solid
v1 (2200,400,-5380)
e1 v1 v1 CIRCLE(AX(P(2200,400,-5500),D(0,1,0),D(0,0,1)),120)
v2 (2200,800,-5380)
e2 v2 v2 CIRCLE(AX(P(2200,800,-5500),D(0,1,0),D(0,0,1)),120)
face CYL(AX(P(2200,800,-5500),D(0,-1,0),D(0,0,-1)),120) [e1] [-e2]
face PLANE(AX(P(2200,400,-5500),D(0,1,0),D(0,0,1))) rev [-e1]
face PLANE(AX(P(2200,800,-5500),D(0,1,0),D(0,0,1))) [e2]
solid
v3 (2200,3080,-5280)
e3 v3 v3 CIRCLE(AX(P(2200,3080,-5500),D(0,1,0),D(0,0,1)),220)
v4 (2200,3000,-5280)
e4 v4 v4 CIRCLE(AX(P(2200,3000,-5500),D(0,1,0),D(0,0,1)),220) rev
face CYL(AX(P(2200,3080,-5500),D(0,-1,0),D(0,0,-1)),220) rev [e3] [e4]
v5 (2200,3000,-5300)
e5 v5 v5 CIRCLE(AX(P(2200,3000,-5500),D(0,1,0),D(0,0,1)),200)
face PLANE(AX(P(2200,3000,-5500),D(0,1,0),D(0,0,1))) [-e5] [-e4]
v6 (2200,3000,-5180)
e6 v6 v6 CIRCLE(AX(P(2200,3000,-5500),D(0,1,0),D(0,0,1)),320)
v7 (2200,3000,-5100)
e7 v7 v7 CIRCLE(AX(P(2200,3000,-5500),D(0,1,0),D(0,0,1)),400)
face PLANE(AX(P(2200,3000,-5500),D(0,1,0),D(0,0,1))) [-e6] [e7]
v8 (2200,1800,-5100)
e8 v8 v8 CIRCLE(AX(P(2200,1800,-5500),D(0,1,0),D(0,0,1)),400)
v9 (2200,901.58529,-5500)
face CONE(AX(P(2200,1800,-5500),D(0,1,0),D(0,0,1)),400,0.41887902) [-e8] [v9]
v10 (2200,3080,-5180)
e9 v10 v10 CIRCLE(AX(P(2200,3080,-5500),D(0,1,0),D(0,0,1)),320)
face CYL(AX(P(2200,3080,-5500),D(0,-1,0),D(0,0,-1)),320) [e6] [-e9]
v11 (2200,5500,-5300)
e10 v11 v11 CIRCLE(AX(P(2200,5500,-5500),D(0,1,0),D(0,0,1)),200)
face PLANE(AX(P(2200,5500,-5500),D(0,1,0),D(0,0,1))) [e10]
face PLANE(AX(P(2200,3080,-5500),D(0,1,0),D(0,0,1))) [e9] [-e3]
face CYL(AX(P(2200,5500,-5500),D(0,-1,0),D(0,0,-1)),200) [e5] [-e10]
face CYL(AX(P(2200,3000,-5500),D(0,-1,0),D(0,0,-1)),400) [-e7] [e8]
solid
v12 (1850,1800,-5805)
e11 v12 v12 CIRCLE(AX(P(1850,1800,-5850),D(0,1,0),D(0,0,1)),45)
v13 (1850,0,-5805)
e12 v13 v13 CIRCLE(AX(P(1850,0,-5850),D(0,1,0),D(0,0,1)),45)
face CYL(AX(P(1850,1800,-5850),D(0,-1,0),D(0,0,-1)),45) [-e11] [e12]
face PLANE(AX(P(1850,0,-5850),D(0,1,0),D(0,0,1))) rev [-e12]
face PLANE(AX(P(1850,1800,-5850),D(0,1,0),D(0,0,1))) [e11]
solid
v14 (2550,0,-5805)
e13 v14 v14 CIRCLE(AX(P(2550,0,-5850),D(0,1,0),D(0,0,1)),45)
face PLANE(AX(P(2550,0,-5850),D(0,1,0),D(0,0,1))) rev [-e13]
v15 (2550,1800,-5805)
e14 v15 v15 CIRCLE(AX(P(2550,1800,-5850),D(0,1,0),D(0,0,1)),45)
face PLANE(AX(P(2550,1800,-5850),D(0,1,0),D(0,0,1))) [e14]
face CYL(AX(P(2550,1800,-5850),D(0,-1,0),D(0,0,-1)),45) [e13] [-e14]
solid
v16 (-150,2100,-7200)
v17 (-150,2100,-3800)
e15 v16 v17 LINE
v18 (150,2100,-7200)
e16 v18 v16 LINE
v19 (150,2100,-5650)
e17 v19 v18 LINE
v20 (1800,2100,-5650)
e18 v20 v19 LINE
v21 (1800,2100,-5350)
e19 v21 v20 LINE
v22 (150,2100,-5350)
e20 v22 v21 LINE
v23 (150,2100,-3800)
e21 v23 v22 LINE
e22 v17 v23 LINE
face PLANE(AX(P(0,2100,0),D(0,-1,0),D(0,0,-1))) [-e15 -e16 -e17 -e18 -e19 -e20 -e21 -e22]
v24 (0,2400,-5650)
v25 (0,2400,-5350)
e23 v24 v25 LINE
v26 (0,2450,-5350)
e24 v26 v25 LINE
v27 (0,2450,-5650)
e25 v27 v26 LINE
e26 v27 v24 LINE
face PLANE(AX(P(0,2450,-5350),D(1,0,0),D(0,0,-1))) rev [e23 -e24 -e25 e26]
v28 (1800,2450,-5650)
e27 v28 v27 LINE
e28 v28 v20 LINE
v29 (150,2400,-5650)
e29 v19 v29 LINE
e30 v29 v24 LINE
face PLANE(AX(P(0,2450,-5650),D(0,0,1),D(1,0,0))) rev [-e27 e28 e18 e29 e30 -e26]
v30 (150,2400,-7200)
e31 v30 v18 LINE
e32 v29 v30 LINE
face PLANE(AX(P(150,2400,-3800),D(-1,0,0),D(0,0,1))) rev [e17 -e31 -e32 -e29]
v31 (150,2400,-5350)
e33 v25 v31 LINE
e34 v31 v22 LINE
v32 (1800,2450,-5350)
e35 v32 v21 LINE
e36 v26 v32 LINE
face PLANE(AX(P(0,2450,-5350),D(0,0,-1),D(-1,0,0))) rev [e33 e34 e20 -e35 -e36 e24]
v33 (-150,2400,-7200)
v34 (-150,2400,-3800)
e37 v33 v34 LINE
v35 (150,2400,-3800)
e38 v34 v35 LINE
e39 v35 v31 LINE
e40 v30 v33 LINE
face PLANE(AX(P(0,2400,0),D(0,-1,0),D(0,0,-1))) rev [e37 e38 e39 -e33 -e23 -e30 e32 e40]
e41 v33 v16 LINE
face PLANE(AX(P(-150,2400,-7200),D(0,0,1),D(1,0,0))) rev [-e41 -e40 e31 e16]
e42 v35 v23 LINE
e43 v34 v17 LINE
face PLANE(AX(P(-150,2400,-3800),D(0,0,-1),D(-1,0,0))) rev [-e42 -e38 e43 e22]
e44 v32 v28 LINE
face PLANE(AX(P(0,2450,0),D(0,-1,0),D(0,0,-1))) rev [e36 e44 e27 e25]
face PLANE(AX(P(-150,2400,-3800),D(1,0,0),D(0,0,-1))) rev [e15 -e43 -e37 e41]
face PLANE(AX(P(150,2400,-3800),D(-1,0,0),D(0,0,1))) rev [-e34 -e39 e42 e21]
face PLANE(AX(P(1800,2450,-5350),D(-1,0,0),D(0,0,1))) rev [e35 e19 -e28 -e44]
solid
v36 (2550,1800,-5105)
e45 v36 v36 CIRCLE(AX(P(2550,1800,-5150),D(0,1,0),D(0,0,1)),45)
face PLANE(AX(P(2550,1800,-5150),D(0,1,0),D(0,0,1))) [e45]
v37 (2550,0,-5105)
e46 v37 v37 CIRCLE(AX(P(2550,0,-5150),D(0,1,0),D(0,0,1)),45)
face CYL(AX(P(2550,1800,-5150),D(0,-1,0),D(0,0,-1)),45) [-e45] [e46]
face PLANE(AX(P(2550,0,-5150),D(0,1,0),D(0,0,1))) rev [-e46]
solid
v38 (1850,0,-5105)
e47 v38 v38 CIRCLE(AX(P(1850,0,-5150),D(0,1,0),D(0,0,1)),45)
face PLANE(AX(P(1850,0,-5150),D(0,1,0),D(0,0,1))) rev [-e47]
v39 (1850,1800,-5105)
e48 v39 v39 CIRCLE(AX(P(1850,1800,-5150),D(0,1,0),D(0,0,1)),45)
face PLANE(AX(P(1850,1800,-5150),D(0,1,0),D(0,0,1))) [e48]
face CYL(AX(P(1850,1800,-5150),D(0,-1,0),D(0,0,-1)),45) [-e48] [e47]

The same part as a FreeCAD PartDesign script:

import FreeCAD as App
import Part
import Sketcher
from FreeCAD import Vector
Q = App.Units.Quantity

doc = App.newDocument("Part")
body = doc.addObject("PartDesign::Body", "Body")

# Sketch on XZ plane
sketch1 = body.newObject("Sketcher::SketchObject", "Sketch")
sketch1.AttachmentSupport = (doc.getObject("XZ_Plane"), [""])
sketch1.MapMode = "FlatFace"
sketch1.addGeometry(Part.Circle(Vector(1850, -5150, 0), Vector(0, 0, 1), 45), False)
sketch1.addConstraint([
    Sketcher.Constraint("Diameter", 0, 90.0),
    Sketcher.Constraint("DistanceX", -1, 1, 0, 3, 1850.0),
    Sketcher.Constraint("DistanceY", 0, 3, -1, 1, 5150.0),
])
pad1 = body.newObject("PartDesign::Pad", "Pad")
pad1.Profile = sketch1
pad1.Length = 1800
pad1.Reversed = True
body2 = doc.addObject("PartDesign::Body", "Body001")

# Sketch on XZ plane
sketch2 = body2.newObject("Sketcher::SketchObject", "Sketch001")
sketch2.AttachmentSupport = (doc.getObject("XZ_Plane001"), [""])
sketch2.MapMode = "FlatFace"
sketch2.addGeometry(Part.Circle(Vector(2550, -5150, 0), Vector(0, 0, 1), 45), False)
sketch2.addConstraint([
    Sketcher.Constraint("Diameter", 0, 90.0),
    Sketcher.Constraint("DistanceX", -1, 1, 0, 3, 2550.0),
    Sketcher.Constraint("DistanceY", 0, 3, -1, 1, 5150.0),
])
pad2 = body2.newObject("PartDesign::Pad", "Pad001")
pad2.Profile = sketch2
pad2.Length = 1800
pad2.Reversed = True
body3 = doc.addObject("PartDesign::Body", "Body002")

# Sketch on XZ plane
sketch3 = body3.newObject("Sketcher::SketchObject", "Sketch002")
sketch3.AttachmentSupport = (doc.getObject("XZ_Plane002"), [""])
sketch3.MapMode = "FlatFace"
sketch3.addGeometry(Part.Circle(Vector(1850, -5850, 0), Vector(0, 0, 1), 45), False)
sketch3.addConstraint([
    Sketcher.Constraint("Diameter", 0, 90.0),
    Sketcher.Constraint("DistanceX", -1, 1, 0, 3, 1850.0),
    Sketcher.Constraint("DistanceY", 0, 3, -1, 1, 5850.0),
])
pad3 = body3.newObject("PartDesign::Pad", "Pad002")
pad3.Profile = sketch3
pad3.Length = 1800
pad3.Reversed = True
body4 = doc.addObject("PartDesign::Body", "Body003")

# Sketch on XZ plane
sketch4 = body4.newObject("Sketcher::SketchObject", "Sketch003")
sketch4.AttachmentSupport = (doc.getObject("XZ_Plane003"), [""])
sketch4.MapMode = "FlatFace"
sketch4.addGeometry(Part.Circle(Vector(2550, -5850, 0), Vector(0, 0, 1), 45), False)
sketch4.addConstraint([
    Sketcher.Constraint("Diameter", 0, 90.0),
    Sketcher.Constraint("DistanceX", -1, 1, 0, 3, 2550.0),
    Sketcher.Constraint("DistanceY", 0, 3, -1, 1, 5850.0),
])
pad4 = body4.newObject("PartDesign::Pad", "Pad003")
pad4.Profile = sketch4
pad4.Length = 1800
pad4.Reversed = True
body5 = doc.addObject("PartDesign::Body", "Body004")

# Sketch on XZ plane
sketch5 = body5.newObject("Sketcher::SketchObject", "Sketch004")
sketch5.AttachmentSupport = (doc.getObject("XZ_Plane004"), [""])
sketch5.MapMode = "FlatFace"
sketch5.AttachmentOffset = App.Placement(Vector(0, 0, -400), App.Rotation())
sketch5.addGeometry(Part.Circle(Vector(2200, -5500, 0), Vector(0, 0, 1), 120), False)
sketch5.addConstraint([
    Sketcher.Constraint("Diameter", 0, 240.0),
    Sketcher.Constraint("DistanceX", -1, 1, 0, 3, 2200.0),
    Sketcher.Constraint("DistanceY", 0, 3, -1, 1, 5500.0),
])
pad5 = body5.newObject("PartDesign::Pad", "Pad004")
pad5.Profile = sketch5
pad5.Length = 400
pad5.Reversed = True
body6 = doc.addObject("PartDesign::Body", "Body005")

# Sketch on YZ plane
sketch6 = body6.newObject("Sketcher::SketchObject", "Sketch005")
sketch6.AttachmentSupport = (doc.getObject("YZ_Plane005"), [""])
sketch6.MapMode = "FlatFace"
sketch6.AttachmentOffset = App.Placement(Vector(0, 0, 2200), App.Rotation())
sketch6.addGeometry([
    Part.LineSegment(Vector(1800, -5500, 0), Vector(1800, -5100, 0)),
    Part.LineSegment(Vector(1800, -5100, 0), Vector(902, -5500, 0)),
    Part.LineSegment(Vector(902, -5500, 0), Vector(1800, -5500, 0)),
], False)
sketch6.addGeometry(Part.LineSegment(Vector(1800, -5500, 0), Vector(902, -5500, 0)), True)  # axis
sketch6.addConstraint([
    Sketcher.Constraint("Coincident", 0, 2, 1, 1),
    Sketcher.Constraint("Coincident", 1, 2, 2, 1),
    Sketcher.Constraint("Coincident", 2, 2, 0, 1),
    Sketcher.Constraint("Vertical", 0),
    Sketcher.Constraint("Horizontal", 2),
    Sketcher.Constraint("Horizontal", 3),
    Sketcher.Constraint("Coincident", 3, 1, 2, 2),
    Sketcher.Constraint("Equal", 2, 3),
    Sketcher.Constraint("DistanceY", 0, 1, 0, 2, 400.0),
    Sketcher.Constraint("Angle", 1, Q("-156 deg")),
    Sketcher.Constraint("DistanceX", -1, 1, 0, 2, 1800.0),
    Sketcher.Constraint("DistanceY", 0, 2, -1, 1, 5100.0),
])
revolution = body6.newObject("PartDesign::Revolution", "Revolution")
revolution.Profile = sketch6
revolution.ReferenceAxis = (sketch6, ["Axis0"])
revolution.Angle = 360

# Sketch on XZ plane
sketch7 = body6.newObject("Sketcher::SketchObject", "Sketch006")
sketch7.AttachmentSupport = (doc.getObject("XZ_Plane005"), [""])
sketch7.MapMode = "FlatFace"
sketch7.AttachmentOffset = App.Placement(Vector(0, 0, -1800), App.Rotation())
sketch7.addGeometry(Part.Circle(Vector(2200, -5500, 0), Vector(0, 0, 1), 400), False)
sketch7.addConstraint([
    Sketcher.Constraint("Diameter", 0, 800.0),
    Sketcher.Constraint("DistanceX", -1, 1, 0, 3, 2200.0),
    Sketcher.Constraint("DistanceY", 0, 3, -1, 1, 5500.0),
])
pad6 = body6.newObject("PartDesign::Pad", "Pad005")
pad6.Profile = sketch7
pad6.Length = 1200
pad6.Reversed = True

# Sketch on XZ plane
sketch8 = body6.newObject("Sketcher::SketchObject", "Sketch007")
sketch8.AttachmentSupport = (doc.getObject("XZ_Plane005"), [""])
sketch8.MapMode = "FlatFace"
sketch8.AttachmentOffset = App.Placement(Vector(0, 0, -3000), App.Rotation())
sketch8.addGeometry(Part.Circle(Vector(2200, -5500, 0), Vector(0, 0, 1), 200), False)
sketch8.addConstraint([
    Sketcher.Constraint("Diameter", 0, 400.0),
    Sketcher.Constraint("DistanceX", -1, 1, 0, 3, 2200.0),
    Sketcher.Constraint("DistanceY", 0, 3, -1, 1, 5500.0),
])
pad7 = body6.newObject("PartDesign::Pad", "Pad006")
pad7.Profile = sketch8
pad7.Length = 2500
pad7.Reversed = True

# Sketch on XZ plane
sketch9 = body6.newObject("Sketcher::SketchObject", "Sketch008")
sketch9.AttachmentSupport = (doc.getObject("XZ_Plane005"), [""])
sketch9.MapMode = "FlatFace"
sketch9.AttachmentOffset = App.Placement(Vector(0, 0, -3000), App.Rotation())
sketch9.addGeometry([
    Part.Circle(Vector(2200, -5500, 0), Vector(0, 0, 1), 320),
    Part.Circle(Vector(2200, -5500, 0), Vector(0, 0, 1), 220),
], False)
sketch9.addConstraint([
    Sketcher.Constraint("Coincident", 1, 3, 0, 3),
    Sketcher.Constraint("Diameter", 0, 640.0),
    Sketcher.Constraint("Diameter", 1, 440.0),
    Sketcher.Constraint("DistanceX", -1, 1, 0, 3, 2200.0),
    Sketcher.Constraint("DistanceY", 0, 3, -1, 1, 5500.0),
])
pad8 = body6.newObject("PartDesign::Pad", "Pad007")
pad8.Profile = sketch9
pad8.Length = 80
pad8.Reversed = True
body7 = doc.addObject("PartDesign::Body", "Body006")

# Sketch on XZ plane
sketch10 = body7.newObject("Sketcher::SketchObject", "Sketch009")
sketch10.AttachmentSupport = (doc.getObject("XZ_Plane006"), [""])
sketch10.MapMode = "FlatFace"
sketch10.AttachmentOffset = App.Placement(Vector(0, 0, -2100), App.Rotation())
sketch10.addGeometry([
    Part.LineSegment(Vector(-150, -7200, 0), Vector(-150, -3800, 0)),
    Part.LineSegment(Vector(-150, -3800, 0), Vector(150, -3800, 0)),
    Part.LineSegment(Vector(150, -3800, 0), Vector(150, -7200, 0)),
    Part.LineSegment(Vector(150, -7200, 0), Vector(-150, -7200, 0)),
], False)
sketch10.addConstraint([
    Sketcher.Constraint("Coincident", 0, 2, 1, 1),
    Sketcher.Constraint("Coincident", 1, 2, 2, 1),
    Sketcher.Constraint("Coincident", 2, 2, 3, 1),
    Sketcher.Constraint("Coincident", 3, 2, 0, 1),
    Sketcher.Constraint("Vertical", 0),
    Sketcher.Constraint("Horizontal", 1),
    Sketcher.Constraint("Vertical", 2),
    Sketcher.Constraint("Horizontal", 3),
    Sketcher.Constraint("DistanceX", 1, 1, 1, 2, 300.0),
    Sketcher.Constraint("DistanceY", 0, 1, 0, 2, 3400.0),
    Sketcher.Constraint("DistanceX", 0, 2, -1, 1, 150.0),
    Sketcher.Constraint("DistanceY", 0, 2, -1, 1, 3800.0),
])
pad9 = body7.newObject("PartDesign::Pad", "Pad008")
pad9.Profile = sketch10
pad9.Length = 300
pad9.Reversed = True

# Sketch on XZ plane
sketch11 = body7.newObject("Sketcher::SketchObject", "Sketch010")
sketch11.AttachmentSupport = (doc.getObject("XZ_Plane006"), [""])
sketch11.MapMode = "FlatFace"
sketch11.AttachmentOffset = App.Placement(Vector(0, 0, -2100), App.Rotation())
sketch11.addGeometry([
    Part.LineSegment(Vector(0, -5650, 0), Vector(0, -5350, 0)),
    Part.LineSegment(Vector(0, -5350, 0), Vector(1800, -5350, 0)),
    Part.LineSegment(Vector(1800, -5350, 0), Vector(1800, -5650, 0)),
    Part.LineSegment(Vector(1800, -5650, 0), Vector(0, -5650, 0)),
], False)
sketch11.addConstraint([
    Sketcher.Constraint("Coincident", 0, 2, 1, 1),
    Sketcher.Constraint("Coincident", 1, 2, 2, 1),
    Sketcher.Constraint("Coincident", 2, 2, 3, 1),
    Sketcher.Constraint("Coincident", 3, 2, 0, 1),
    Sketcher.Constraint("Vertical", 0),
    Sketcher.Constraint("Horizontal", 1),
    Sketcher.Constraint("Vertical", 2),
    Sketcher.Constraint("Horizontal", 3),
    Sketcher.Constraint("PointOnObject", 0, 2, -2),
    Sketcher.Constraint("DistanceX", 1, 1, 1, 2, 1800.0),
    Sketcher.Constraint("DistanceY", 0, 1, 0, 2, 300.0),
    Sketcher.Constraint("DistanceY", 0, 2, -1, 1, 5350.0),
])
pad10 = body7.newObject("PartDesign::Pad", "Pad009")
pad10.Profile = sketch11
pad10.Length = 350
pad10.Reversed = True

doc.recompute()
